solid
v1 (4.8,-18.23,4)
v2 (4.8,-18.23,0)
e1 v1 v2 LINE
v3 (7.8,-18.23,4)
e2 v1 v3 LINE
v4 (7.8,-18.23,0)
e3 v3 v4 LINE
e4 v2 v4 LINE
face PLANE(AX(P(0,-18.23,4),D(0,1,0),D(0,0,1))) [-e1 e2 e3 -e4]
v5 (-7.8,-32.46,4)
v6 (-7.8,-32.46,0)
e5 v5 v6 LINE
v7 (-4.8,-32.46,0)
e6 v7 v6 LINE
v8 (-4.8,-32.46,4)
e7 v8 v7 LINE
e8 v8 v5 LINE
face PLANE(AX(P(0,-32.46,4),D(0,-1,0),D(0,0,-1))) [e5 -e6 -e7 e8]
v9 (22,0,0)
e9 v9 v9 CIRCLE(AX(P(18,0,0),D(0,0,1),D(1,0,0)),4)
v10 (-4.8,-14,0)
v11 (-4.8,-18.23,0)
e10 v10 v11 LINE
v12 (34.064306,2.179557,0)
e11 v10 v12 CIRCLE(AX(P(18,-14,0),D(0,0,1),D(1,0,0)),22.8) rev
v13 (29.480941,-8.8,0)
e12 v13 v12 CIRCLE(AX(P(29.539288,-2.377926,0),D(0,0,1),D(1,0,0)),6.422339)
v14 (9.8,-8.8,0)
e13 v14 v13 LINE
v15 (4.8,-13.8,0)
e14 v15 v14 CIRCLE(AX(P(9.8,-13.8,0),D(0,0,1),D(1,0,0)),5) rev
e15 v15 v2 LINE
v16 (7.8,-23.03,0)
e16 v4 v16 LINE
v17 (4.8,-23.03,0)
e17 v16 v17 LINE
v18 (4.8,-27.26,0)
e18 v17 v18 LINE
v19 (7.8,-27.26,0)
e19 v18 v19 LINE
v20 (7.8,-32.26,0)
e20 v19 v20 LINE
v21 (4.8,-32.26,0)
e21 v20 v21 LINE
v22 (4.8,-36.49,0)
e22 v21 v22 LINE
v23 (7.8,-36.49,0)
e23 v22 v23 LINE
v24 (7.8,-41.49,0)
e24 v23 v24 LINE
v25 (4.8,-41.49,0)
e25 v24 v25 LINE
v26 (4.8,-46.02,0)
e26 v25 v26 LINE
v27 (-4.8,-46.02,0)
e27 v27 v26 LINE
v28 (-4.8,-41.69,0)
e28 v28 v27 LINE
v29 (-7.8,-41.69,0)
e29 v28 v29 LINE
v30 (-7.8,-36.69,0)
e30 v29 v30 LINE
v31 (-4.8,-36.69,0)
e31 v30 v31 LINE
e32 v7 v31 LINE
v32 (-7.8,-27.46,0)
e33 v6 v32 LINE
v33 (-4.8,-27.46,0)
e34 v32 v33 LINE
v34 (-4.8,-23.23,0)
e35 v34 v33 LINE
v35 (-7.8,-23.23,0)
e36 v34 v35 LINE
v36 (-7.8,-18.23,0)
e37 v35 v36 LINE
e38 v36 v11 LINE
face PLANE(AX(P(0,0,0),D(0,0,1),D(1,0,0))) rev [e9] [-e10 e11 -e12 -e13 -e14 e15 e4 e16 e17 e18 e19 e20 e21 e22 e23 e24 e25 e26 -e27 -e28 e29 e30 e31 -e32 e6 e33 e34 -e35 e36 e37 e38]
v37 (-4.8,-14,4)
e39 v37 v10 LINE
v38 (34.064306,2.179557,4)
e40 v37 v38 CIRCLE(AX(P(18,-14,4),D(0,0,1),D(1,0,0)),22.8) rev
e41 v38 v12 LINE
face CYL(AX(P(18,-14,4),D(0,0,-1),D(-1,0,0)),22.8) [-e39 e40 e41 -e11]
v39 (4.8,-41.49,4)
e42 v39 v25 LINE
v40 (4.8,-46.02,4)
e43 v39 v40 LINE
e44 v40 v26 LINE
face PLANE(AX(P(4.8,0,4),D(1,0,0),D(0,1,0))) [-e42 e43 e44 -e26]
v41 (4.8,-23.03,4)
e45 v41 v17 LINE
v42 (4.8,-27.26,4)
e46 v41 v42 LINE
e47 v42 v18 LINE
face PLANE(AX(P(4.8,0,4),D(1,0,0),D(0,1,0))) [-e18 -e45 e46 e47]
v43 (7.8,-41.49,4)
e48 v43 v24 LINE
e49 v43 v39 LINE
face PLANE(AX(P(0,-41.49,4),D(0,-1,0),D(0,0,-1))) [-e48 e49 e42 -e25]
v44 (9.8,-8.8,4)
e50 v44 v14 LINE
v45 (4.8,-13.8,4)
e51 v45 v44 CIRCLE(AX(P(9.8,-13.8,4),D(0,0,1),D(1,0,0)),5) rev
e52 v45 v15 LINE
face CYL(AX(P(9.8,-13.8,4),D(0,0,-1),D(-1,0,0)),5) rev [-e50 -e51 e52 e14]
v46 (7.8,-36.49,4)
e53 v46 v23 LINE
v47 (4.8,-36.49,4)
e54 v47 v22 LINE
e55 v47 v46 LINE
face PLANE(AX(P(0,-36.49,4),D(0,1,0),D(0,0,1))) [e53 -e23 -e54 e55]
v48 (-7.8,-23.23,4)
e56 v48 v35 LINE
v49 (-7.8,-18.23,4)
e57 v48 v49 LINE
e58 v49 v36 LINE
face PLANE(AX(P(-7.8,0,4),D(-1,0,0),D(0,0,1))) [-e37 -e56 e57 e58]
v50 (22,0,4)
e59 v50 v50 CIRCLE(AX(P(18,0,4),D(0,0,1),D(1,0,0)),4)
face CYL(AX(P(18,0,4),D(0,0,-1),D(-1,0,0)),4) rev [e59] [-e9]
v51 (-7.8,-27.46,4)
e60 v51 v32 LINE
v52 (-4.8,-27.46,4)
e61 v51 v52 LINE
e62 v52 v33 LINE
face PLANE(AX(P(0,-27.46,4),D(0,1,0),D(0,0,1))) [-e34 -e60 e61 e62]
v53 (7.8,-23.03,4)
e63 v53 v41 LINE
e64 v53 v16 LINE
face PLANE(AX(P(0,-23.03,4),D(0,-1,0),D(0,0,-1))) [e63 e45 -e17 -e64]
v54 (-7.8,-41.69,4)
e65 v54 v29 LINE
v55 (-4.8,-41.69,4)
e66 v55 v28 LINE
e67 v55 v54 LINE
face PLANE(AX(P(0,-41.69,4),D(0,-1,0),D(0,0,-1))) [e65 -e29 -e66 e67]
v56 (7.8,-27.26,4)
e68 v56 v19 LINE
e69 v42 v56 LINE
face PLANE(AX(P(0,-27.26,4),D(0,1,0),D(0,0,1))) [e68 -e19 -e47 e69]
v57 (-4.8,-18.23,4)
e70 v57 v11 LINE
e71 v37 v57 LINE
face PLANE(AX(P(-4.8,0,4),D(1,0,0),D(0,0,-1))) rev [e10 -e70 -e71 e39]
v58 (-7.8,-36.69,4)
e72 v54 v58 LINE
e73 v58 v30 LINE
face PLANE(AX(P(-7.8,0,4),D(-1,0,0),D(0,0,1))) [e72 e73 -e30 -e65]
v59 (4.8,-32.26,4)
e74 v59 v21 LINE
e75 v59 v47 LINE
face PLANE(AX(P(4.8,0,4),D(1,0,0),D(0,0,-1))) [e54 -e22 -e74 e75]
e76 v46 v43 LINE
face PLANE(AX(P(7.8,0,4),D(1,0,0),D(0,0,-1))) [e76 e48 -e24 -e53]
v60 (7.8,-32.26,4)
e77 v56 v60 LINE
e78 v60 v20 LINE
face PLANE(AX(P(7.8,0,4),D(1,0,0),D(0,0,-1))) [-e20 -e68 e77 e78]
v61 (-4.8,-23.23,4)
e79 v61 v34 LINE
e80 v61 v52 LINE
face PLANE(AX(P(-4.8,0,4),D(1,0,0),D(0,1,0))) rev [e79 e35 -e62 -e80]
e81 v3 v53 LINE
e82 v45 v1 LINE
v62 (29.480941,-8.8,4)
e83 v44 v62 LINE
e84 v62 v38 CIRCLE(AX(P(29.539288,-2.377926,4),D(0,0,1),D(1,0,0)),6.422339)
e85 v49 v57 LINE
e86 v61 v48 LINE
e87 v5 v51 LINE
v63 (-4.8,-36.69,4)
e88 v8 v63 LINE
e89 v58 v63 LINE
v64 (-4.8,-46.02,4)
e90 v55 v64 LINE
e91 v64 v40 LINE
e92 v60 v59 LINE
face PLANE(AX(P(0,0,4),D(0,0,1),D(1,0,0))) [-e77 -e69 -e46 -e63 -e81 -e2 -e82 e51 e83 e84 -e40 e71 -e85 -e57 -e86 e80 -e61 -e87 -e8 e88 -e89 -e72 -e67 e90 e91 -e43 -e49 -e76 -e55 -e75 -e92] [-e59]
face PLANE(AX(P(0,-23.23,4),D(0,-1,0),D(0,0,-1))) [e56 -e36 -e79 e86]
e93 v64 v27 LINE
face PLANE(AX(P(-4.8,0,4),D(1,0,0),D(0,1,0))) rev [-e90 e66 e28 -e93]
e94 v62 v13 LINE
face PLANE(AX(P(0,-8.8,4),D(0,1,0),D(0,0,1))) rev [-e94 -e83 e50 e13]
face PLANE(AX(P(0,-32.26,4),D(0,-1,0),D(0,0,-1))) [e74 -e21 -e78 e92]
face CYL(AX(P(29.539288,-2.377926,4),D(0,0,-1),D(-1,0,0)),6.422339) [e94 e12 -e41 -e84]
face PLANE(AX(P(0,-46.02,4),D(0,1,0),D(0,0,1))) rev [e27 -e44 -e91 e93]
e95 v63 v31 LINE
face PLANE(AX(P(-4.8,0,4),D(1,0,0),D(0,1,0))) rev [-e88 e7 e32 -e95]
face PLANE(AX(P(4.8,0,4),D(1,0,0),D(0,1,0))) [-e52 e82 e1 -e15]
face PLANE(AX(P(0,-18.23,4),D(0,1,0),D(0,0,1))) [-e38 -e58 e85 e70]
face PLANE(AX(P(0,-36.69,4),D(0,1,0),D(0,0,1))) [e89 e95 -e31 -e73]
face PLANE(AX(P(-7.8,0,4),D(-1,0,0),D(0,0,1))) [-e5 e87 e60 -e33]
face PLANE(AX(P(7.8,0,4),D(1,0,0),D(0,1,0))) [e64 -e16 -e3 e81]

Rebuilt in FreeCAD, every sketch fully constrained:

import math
import FreeCAD as App
import Part
import Sketcher

V = App.Vector
Q = App.Units.Quantity

doc = App.newDocument("Part")
params = doc.addObject("Spreadsheet::Sheet", "Params")
for row, (alias, value) in enumerate([
    ("sketch1_diameter", "8 mm"),
    ("sketch1_radius", "5 mm"),
    ("sketch1_radius2", "22.8 mm"),
    ("sketch1_width", "3 mm"),
    ("sketch1_height", "5 mm"),
    ("pad1_length", "4 mm"),
], start=1):
    params.set(f"A{row}", alias)
    params.set(f"B{row}", "=" + value)
    params.setAlias(f"B{row}", alias)

body = doc.addObject("PartDesign::Body", "Body")

# Sketch on XY plane
sketch1 = body.newObject("Sketcher::SketchObject", "Sketch")
sketch1.AttachmentSupport = (doc.getObject("XY_Plane"), [""])
sketch1.MapMode = "FlatFace"
sketch1.addGeometry([
    Part.ArcOfCircle(Part.Circle(V(18, -14, 0), V(0, 0, 1), 22.8), math.radians(45), math.radians(180)),  # 0
    Part.LineSegment(V(-4.8, -14, 0), V(-4.8, -18.2, 0)),  # 1
    Part.LineSegment(V(-4.8, -18.2, 0), V(-7.8, -18.2, 0)),  # 2
    Part.LineSegment(V(-7.8, -18.2, 0), V(-7.8, -23.2, 0)),  # 3
    Part.LineSegment(V(-7.8, -23.2, 0), V(-4.8, -23.2, 0)),  # 4
    Part.LineSegment(V(-4.8, -23.2, 0), V(-4.8, -27.5, 0)),  # 5
    Part.LineSegment(V(-4.8, -27.5, 0), V(-7.8, -27.5, 0)),  # 6
    Part.LineSegment(V(-7.8, -27.5, 0), V(-7.8, -32.5, 0)),  # 7
    Part.LineSegment(V(-7.8, -32.5, 0), V(-4.8, -32.5, 0)),  # 8
    Part.LineSegment(V(-4.8, -32.5, 0), V(-4.8, -36.7, 0)),  # 9
    Part.LineSegment(V(-4.8, -36.7, 0), V(-7.8, -36.7, 0)),  # 10
    Part.LineSegment(V(-7.8, -36.7, 0), V(-7.8, -41.7, 0)),  # 11
    Part.LineSegment(V(-7.8, -41.7, 0), V(-4.8, -41.7, 0)),  # 12
    Part.LineSegment(V(-4.8, -41.7, 0), V(-4.8, -46, 0)),  # 13
    Part.LineSegment(V(-4.8, -46, 0), V(4.8, -46, 0)),  # 14
    Part.LineSegment(V(4.8, -46, 0), V(4.8, -41.5, 0)),  # 15
    Part.LineSegment(V(4.8, -41.5, 0), V(7.8, -41.5, 0)),  # 16
    Part.LineSegment(V(7.8, -41.5, 0), V(7.8, -36.5, 0)),  # 17
    Part.LineSegment(V(7.8, -36.5, 0), V(4.8, -36.5, 0)),  # 18
    Part.LineSegment(V(4.8, -36.5, 0), V(4.8, -32.3, 0)),  # 19
    Part.LineSegment(V(4.8, -32.3, 0), V(7.8, -32.3, 0)),  # 20
    Part.LineSegment(V(7.8, -32.3, 0), V(7.8, -27.3, 0)),  # 21
    Part.LineSegment(V(7.8, -27.3, 0), V(4.8, -27.3, 0)),  # 22
    Part.LineSegment(V(4.8, -27.3, 0), V(4.8, -23, 0)),  # 23
    Part.LineSegment(V(4.8, -23, 0), V(7.8, -23, 0)),  # 24
    Part.LineSegment(V(7.8, -23, 0), V(7.8, -18.2, 0)),  # 25
    Part.LineSegment(V(7.8, -18.2, 0), V(4.8, -18.2, 0)),  # 26
    Part.LineSegment(V(4.8, -18.2, 0), V(4.8, -13.8, 0)),  # 27
    Part.ArcOfCircle(Part.Circle(V(9.8, -13.8, 0), V(0, 0, 1), 5), math.radians(90), math.radians(180)),  # 28
    Part.LineSegment(V(9.8, -8.8, 0), V(29.5, -8.8, 0)),  # 29
    Part.ArcOfCircle(Part.Circle(V(29.5, -2.4, 0), V(0, 0, 1), 6.4), math.radians(-91), math.radians(45)),  # 30
    Part.Circle(V(18, 0, 0), V(0, 0, 1), 4),  # 31
], False)
sketch1.addConstraint([
    Sketcher.Constraint("Tangent", 0, 2, 1, 1),
    Sketcher.Constraint("Coincident", 1, 2, 2, 1),
    Sketcher.Constraint("Coincident", 2, 2, 3, 1),
    Sketcher.Constraint("Coincident", 3, 2, 4, 1),
    Sketcher.Constraint("Coincident", 4, 2, 5, 1),
    Sketcher.Constraint("Coincident", 5, 2, 6, 1),
    Sketcher.Constraint("Coincident", 6, 2, 7, 1),
    Sketcher.Constraint("Coincident", 7, 2, 8, 1),
    Sketcher.Constraint("Coincident", 8, 2, 9, 1),
    Sketcher.Constraint("Coincident", 9, 2, 10, 1),
    Sketcher.Constraint("Coincident", 10, 2, 11, 1),
    Sketcher.Constraint("Coincident", 11, 2, 12, 1),
    Sketcher.Constraint("Coincident", 12, 2, 13, 1),
    Sketcher.Constraint("Coincident", 13, 2, 14, 1),
    Sketcher.Constraint("Coincident", 14, 2, 15, 1),
    Sketcher.Constraint("Coincident", 15, 2, 16, 1),
    Sketcher.Constraint("Coincident", 16, 2, 17, 1),
    Sketcher.Constraint("Coincident", 17, 2, 18, 1),
    Sketcher.Constraint("Coincident", 18, 2, 19, 1),
    Sketcher.Constraint("Coincident", 19, 2, 20, 1),
    Sketcher.Constraint("Coincident", 20, 2, 21, 1),
    Sketcher.Constraint("Coincident", 21, 2, 22, 1),
    Sketcher.Constraint("Coincident", 22, 2, 23, 1),
    Sketcher.Constraint("Coincident", 23, 2, 24, 1),
    Sketcher.Constraint("Coincident", 24, 2, 25, 1),
    Sketcher.Constraint("Coincident", 25, 2, 26, 1),
    Sketcher.Constraint("Coincident", 26, 2, 27, 1),
    Sketcher.Constraint("Tangent", 27, 2, 28, 2),
    Sketcher.Constraint("Tangent", 28, 1, 29, 1),
    Sketcher.Constraint("Coincident", 29, 2, 30, 1),
    Sketcher.Constraint("Tangent", 30, 2, 0, 1),
    Sketcher.Constraint("Vertical", 1),
    Sketcher.Constraint("Horizontal", 2),
    Sketcher.Constraint("Vertical", 3),
    Sketcher.Constraint("Horizontal", 4),
    Sketcher.Constraint("Vertical", 5),
    Sketcher.Constraint("Horizontal", 6),
    Sketcher.Constraint("Vertical", 7),
    Sketcher.Constraint("Horizontal", 8),
    Sketcher.Constraint("Vertical", 9),
    Sketcher.Constraint("Horizontal", 10),
    Sketcher.Constraint("Vertical", 11),
    Sketcher.Constraint("Horizontal", 12),
    Sketcher.Constraint("Vertical", 13),
    Sketcher.Constraint("Horizontal", 14),
    Sketcher.Constraint("Vertical", 15),
    Sketcher.Constraint("Horizontal", 16),
    Sketcher.Constraint("Vertical", 17),
    Sketcher.Constraint("Horizontal", 18),
    Sketcher.Constraint("Vertical", 19),
    Sketcher.Constraint("Horizontal", 20),
    Sketcher.Constraint("Vertical", 21),
    Sketcher.Constraint("Horizontal", 22),
    Sketcher.Constraint("Vertical", 23),
    Sketcher.Constraint("Horizontal", 24),
    Sketcher.Constraint("Vertical", 25),
    Sketcher.Constraint("Horizontal", 26),
    Sketcher.Constraint("Vertical", 27),
    Sketcher.Constraint("Horizontal", 29),
    Sketcher.Constraint("Symmetric", 2, 2, 25, 2, -2),
    Sketcher.Constraint("PointOnObject", 31, 3, -1),
    Sketcher.Constraint("Vertical", 0, 3, 31, 3),
    Sketcher.Constraint("Vertical", 1, 2, 4, 2),
    Sketcher.Constraint("Vertical", 3, 2, 6, 2),
    Sketcher.Constraint("Vertical", 5, 2, 8, 2),
    Sketcher.Constraint("Vertical", 7, 2, 10, 2),
    Sketcher.Constraint("Vertical", 9, 2, 12, 2),
    Sketcher.Constraint("Vertical", 15, 2, 18, 2),
    Sketcher.Constraint("Vertical", 17, 2, 20, 2),
    Sketcher.Constraint("Vertical", 19, 2, 22, 2),
    Sketcher.Constraint("Vertical", 21, 2, 24, 2),
    Sketcher.Constraint("Vertical", 23, 2, 26, 2),
    Sketcher.Constraint("Equal", 12, 16),
    Sketcher.Constraint("Equal", 1, 5),
    Sketcher.Constraint("Equal", 3, 7),
    Sketcher.Constraint("Equal", 5, 9),
    Sketcher.Constraint("Equal", 7, 11),
    Sketcher.Constraint("Equal", 11, 17),
    Sketcher.Constraint("Equal", 9, 19),
    Sketcher.Constraint("Equal", 17, 21),
    Sketcher.Constraint("Equal", 19, 23),
    Sketcher.Constraint("Diameter", 31, Q("8 mm")),
    Sketcher.Constraint("Radius", 28, Q("5 mm")),
    Sketcher.Constraint("Radius", 0, Q("22.8 mm")),
    Sketcher.Constraint("DistanceX", 2, 2, 2, 1, Q("3 mm")),
    Sketcher.Constraint("DistanceY", 3, 2, 3, 1, Q("5 mm")),
    Sketcher.Constraint("DistanceX", 14, 1, 14, 2, Q("9.6 mm")),
    Sketcher.Constraint("DistanceY", 25, 1, 25, 2, Q("4.8 mm")),
    Sketcher.Constraint("DistanceY", 0, 3, -1, 1, Q("14 mm")),
    Sketcher.Constraint("DistanceY", 1, 2, 1, 1, Q("4.23 mm")),
    Sketcher.Constraint("DistanceY", 13, 2, 13, 1, Q("4.33 mm")),
    Sketcher.Constraint("DistanceY", 27, 1, 27, 2, Q("4.43 mm")),
    Sketcher.Constraint("Radius", 30, Q("6.422339 mm")),
    Sketcher.Constraint("DistanceX", 29, 1, 29, 2, Q("19.680941 mm")),
])
sketch1.setExpression("Constraints[81]", "Params.sketch1_diameter")
sketch1.setExpression("Constraints[82]", "Params.sketch1_radius")
sketch1.setExpression("Constraints[83]", "Params.sketch1_radius2")
sketch1.setExpression("Constraints[84]", "Params.sketch1_width")
sketch1.setExpression("Constraints[85]", "Params.sketch1_height")
pad1 = body.newObject("PartDesign::Pad", "Pad")
pad1.Profile = sketch1
pad1.setExpression("Length", "Params.pad1_length")

doc.recompute()
